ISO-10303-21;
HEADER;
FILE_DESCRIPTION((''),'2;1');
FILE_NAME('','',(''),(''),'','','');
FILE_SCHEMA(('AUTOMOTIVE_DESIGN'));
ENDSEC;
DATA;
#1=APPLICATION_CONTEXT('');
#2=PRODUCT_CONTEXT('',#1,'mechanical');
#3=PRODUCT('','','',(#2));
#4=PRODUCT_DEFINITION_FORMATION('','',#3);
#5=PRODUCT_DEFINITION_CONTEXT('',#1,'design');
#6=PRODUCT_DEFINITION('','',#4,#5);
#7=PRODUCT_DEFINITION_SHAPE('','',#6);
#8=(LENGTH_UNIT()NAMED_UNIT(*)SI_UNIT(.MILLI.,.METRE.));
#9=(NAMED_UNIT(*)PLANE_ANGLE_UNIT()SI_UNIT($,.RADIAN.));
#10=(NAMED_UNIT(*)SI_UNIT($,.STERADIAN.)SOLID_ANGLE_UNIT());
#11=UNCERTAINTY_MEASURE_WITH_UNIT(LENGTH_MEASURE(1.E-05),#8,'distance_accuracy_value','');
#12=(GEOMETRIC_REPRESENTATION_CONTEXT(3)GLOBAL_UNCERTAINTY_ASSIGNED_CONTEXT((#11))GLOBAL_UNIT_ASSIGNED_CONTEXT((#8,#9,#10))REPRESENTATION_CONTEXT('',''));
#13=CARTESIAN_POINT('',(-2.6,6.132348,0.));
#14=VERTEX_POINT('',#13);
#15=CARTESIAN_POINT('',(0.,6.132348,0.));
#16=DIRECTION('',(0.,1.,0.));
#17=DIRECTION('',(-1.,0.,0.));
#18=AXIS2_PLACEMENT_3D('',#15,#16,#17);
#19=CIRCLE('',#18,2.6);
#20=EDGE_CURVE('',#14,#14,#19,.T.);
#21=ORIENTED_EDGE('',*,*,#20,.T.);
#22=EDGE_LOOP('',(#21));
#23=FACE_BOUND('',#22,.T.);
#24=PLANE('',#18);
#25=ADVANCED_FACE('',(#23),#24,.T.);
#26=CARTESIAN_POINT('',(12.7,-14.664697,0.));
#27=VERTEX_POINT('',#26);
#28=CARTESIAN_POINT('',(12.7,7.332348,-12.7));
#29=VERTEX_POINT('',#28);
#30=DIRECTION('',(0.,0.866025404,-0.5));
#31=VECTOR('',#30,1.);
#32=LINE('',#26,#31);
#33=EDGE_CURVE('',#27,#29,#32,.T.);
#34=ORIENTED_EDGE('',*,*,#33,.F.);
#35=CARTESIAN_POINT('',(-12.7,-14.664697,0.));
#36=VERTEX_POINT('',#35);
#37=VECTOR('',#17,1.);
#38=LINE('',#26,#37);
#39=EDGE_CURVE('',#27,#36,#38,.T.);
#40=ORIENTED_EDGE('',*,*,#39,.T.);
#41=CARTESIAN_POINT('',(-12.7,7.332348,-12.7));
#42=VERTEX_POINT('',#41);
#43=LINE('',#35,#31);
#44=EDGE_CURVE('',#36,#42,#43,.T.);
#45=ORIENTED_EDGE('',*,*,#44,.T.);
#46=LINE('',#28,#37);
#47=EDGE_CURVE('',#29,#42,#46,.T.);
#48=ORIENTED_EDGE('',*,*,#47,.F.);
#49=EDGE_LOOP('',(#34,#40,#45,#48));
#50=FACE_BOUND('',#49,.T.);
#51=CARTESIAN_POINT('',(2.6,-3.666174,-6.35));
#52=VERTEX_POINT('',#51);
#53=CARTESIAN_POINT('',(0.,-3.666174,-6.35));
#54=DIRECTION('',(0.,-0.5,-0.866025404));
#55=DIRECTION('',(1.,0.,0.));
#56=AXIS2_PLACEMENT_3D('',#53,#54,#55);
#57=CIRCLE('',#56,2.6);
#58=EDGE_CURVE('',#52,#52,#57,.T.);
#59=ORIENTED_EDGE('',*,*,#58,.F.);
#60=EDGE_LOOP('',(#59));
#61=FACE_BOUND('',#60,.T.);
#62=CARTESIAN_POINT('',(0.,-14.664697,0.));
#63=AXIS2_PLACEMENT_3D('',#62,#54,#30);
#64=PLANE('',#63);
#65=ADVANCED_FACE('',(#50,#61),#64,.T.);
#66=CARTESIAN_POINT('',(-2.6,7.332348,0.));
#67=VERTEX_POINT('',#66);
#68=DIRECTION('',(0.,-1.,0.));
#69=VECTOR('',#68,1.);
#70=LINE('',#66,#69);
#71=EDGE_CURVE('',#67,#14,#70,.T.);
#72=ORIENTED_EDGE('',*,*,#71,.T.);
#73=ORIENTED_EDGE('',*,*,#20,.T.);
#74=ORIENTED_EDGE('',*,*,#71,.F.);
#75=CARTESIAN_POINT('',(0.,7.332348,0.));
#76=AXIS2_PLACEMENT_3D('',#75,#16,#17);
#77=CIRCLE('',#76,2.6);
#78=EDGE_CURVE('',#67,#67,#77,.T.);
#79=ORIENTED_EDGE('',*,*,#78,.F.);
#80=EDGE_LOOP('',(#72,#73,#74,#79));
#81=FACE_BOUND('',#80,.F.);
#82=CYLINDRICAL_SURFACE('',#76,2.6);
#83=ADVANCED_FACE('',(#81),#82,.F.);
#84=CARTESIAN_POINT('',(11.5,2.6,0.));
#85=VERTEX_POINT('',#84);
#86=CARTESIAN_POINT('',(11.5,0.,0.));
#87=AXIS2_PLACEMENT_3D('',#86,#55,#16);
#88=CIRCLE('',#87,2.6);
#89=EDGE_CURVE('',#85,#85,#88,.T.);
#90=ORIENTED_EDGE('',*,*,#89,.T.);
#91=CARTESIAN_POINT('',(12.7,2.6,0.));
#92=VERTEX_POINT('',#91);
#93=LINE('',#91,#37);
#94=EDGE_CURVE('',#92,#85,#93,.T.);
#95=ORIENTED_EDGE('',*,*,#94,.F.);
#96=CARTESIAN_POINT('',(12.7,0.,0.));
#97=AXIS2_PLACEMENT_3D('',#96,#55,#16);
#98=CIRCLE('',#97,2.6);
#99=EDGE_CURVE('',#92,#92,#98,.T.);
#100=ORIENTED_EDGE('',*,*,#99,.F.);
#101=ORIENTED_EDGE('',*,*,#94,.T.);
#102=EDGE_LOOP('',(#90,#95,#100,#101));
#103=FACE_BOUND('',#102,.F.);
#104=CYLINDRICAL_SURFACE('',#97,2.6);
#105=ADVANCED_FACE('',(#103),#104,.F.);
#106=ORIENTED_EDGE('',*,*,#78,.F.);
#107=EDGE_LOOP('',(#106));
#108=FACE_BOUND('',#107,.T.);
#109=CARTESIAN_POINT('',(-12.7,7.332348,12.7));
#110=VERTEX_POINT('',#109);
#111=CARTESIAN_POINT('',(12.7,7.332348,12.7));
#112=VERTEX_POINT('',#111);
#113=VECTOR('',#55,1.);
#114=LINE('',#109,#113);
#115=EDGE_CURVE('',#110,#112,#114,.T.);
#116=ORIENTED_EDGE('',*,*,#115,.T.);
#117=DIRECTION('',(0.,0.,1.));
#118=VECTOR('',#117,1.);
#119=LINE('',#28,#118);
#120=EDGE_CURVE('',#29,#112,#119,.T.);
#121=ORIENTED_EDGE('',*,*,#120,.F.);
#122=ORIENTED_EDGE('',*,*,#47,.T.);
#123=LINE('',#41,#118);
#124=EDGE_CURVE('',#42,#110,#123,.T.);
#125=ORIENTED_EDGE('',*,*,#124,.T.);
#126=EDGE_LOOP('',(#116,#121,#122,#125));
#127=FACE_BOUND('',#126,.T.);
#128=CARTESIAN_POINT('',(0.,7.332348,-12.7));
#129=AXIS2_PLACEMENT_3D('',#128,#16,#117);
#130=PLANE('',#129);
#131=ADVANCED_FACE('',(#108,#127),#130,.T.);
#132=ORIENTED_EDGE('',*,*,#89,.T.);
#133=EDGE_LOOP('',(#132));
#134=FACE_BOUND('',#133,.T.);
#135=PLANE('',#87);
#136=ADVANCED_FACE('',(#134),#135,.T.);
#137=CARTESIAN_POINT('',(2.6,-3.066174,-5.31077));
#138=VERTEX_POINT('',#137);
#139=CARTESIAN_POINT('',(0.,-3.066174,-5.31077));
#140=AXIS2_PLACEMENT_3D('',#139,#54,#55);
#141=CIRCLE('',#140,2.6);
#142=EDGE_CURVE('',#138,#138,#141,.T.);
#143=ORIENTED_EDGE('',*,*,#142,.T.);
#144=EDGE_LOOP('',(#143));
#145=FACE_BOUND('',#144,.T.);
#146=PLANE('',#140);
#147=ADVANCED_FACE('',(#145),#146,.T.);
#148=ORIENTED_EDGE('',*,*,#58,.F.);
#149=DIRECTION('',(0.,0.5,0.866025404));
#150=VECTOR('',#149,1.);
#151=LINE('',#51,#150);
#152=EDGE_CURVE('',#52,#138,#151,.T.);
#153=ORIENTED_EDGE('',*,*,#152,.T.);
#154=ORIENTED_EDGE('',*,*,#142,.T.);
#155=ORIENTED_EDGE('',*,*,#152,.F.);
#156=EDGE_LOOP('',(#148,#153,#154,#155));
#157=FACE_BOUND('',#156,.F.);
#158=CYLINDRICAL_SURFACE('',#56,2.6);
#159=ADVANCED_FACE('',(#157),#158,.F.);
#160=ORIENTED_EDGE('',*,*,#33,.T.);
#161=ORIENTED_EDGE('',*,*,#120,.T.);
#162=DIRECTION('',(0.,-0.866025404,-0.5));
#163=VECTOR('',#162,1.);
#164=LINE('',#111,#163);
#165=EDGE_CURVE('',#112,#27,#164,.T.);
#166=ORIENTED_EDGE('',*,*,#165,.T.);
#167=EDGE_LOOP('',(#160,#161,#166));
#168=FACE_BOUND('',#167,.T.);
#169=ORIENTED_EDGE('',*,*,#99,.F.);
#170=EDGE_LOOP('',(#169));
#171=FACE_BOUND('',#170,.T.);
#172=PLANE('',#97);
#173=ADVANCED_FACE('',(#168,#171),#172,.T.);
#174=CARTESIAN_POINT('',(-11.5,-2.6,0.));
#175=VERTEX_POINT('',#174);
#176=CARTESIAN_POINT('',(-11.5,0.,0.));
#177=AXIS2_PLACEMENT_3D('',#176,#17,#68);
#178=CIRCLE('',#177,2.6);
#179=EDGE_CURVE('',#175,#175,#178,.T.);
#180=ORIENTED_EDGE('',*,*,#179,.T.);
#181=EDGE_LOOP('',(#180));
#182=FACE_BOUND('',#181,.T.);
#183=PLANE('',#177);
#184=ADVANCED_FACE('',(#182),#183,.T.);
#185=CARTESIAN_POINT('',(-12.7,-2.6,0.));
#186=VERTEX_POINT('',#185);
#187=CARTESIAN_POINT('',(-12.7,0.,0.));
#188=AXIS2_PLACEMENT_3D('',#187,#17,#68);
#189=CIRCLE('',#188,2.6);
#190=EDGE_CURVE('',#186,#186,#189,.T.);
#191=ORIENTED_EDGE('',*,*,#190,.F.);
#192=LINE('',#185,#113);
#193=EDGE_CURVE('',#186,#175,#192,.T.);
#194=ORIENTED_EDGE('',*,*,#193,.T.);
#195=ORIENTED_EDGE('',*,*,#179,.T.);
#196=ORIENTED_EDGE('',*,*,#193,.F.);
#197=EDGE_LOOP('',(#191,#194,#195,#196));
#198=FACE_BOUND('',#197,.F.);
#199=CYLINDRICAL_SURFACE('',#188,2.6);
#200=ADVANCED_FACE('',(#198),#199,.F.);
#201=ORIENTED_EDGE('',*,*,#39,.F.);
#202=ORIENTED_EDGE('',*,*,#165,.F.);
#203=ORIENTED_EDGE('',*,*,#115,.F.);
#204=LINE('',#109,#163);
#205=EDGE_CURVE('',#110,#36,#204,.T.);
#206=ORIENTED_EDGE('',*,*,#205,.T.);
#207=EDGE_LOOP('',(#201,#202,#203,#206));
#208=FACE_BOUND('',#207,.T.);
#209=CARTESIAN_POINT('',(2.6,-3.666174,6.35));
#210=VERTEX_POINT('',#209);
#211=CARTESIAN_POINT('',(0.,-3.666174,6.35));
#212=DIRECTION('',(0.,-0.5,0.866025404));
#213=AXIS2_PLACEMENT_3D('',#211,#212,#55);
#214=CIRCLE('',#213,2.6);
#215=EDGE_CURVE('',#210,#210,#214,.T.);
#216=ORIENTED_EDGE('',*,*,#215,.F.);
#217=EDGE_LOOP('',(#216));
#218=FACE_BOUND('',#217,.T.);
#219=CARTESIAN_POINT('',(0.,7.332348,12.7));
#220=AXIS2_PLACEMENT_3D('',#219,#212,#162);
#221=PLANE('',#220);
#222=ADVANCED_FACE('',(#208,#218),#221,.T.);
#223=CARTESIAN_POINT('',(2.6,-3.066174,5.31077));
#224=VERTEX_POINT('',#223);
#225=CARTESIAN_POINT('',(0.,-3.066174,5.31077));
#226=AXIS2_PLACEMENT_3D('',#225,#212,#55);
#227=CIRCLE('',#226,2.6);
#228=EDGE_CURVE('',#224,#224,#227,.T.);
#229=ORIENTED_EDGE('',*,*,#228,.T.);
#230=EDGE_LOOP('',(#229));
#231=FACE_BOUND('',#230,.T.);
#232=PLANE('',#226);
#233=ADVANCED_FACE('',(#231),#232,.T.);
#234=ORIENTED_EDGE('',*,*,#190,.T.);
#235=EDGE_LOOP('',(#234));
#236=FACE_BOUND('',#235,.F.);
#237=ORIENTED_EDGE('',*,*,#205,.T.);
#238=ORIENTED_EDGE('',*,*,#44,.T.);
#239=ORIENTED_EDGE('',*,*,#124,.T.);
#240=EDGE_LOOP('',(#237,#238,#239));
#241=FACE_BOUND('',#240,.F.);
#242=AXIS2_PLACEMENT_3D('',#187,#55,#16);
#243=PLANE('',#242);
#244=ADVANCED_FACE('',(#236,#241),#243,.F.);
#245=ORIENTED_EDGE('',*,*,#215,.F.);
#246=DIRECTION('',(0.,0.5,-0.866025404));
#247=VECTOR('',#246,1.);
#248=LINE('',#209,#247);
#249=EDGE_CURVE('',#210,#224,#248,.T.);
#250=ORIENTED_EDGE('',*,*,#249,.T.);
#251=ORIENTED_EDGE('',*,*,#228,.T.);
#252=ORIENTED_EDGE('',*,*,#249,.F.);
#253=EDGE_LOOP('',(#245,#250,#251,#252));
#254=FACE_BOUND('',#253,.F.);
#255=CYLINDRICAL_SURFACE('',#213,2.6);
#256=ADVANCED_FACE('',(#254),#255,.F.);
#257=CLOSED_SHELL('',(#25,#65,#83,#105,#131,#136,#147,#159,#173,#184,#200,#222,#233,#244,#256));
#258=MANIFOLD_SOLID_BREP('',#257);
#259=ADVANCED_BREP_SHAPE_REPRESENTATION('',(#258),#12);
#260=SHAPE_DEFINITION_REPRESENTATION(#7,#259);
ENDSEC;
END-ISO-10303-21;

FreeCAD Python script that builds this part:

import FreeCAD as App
import Part
import Sketcher

V = App.Vector
Q = App.Units.Quantity

doc = App.newDocument("Part")
params = doc.addObject("Spreadsheet::Sheet", "Params")
for row, (alias, value) in enumerate([
    ("sketch1_height", "25.4 mm"),
    ("pad1_length", "25.4 mm"),
    ("sketch2_diameter", "5.2 mm"),
    ("pocket1_length", "1.2 mm"),
    ("sketch3_diameter", "5.2 mm"),
    ("pocket2_length", "1.2 mm"),
    ("sketch4_diameter", "5.2 mm"),
    ("pocket3_length", "1.2 mm"),
    ("sketch5_diameter", "5.2 mm"),
    ("pocket4_length", "1.2 mm"),
    ("sketch6_diameter", "5.2 mm"),
    ("pocket5_length", "1.2 mm"),
], start=1):
    params.set(f"A{row}", alias)
    params.set(f"B{row}", "=" + value)
    params.setAlias(f"B{row}", alias)

body = doc.addObject("PartDesign::Body", "Body")

sketch1 = doc.addObject("Sketcher::SketchObject", "Sketch")
body.addObject(sketch1)
sketch1.AttachmentSupport = (doc.YZ_Plane, [""])
sketch1.MapMode = "FlatFace"
sketch1.addGeometry(Part.LineSegment(V(7, -13, 0), V(7, 13, 0)), False)
sketch1.addGeometry(Part.LineSegment(V(7, 13, 0), V(-15, 0, 0)), False)
sketch1.addGeometry(Part.LineSegment(V(-15, 0, 0), V(7, -13, 0)), False)
sketch1.addConstraint(Sketcher.Constraint("Coincident", 0, 2, 1, 1))
sketch1.addConstraint(Sketcher.Constraint("Coincident", 1, 2, 2, 1))
sketch1.addConstraint(Sketcher.Constraint("Coincident", 2, 2, 0, 1))
sketch1.addConstraint(Sketcher.Constraint("Vertical", 0))
sketch1.addConstraint(Sketcher.Constraint("PointOnObject", 1, 2, -1))
sketch1.addConstraint(Sketcher.Constraint("Equal", 1, 2))
sketch1.addConstraint(Sketcher.Constraint("Angle", 1, Q("-150 deg")))
sketch1.addConstraint(Sketcher.Constraint("DistanceY", 0, 1, 0, 2, 25.4))
sketch1.addConstraint(Sketcher.Constraint("DistanceX", -1, 1, 0, 2, 7.332348))
sketch1.setExpression("Constraints[7]", "Params.sketch1_height")
pad1 = doc.addObject("PartDesign::Pad", "Pad")
body.addObject(pad1)
pad1.Profile = sketch1
pad1.setExpression("Length", "Params.pad1_length")
pad1.Midplane = True

sketch2 = doc.addObject("Sketcher::SketchObject", "Sketch001")
body.addObject(sketch2)
sketch2.AttachmentSupport = (doc.YZ_Plane, [""])
sketch2.MapMode = "FlatFace"
sketch2.AttachmentOffset = App.Placement(V(0, 0, 12.7), App.Rotation())
sketch2.addGeometry(Part.Circle(V(0, 0, 0), V(0, 0, 1), 2.6), False)
sketch2.addConstraint(Sketcher.Constraint("Coincident", 0, 3, -1, 1))
sketch2.addConstraint(Sketcher.Constraint("Diameter", 0, 5.2))
sketch2.setExpression("Constraints[1]", "Params.sketch2_diameter")
pocket1 = doc.addObject("PartDesign::Pocket", "Pocket")
body.addObject(pocket1)
pocket1.Profile = sketch2
pocket1.setExpression("Length", "Params.pocket1_length")

sketch3 = doc.addObject("Sketcher::SketchObject", "Sketch002")
body.addObject(sketch3)
sketch3.Placement = App.Placement(V(0, -3.666174, -6.35), App.Rotation(V(1, 0, 0), V(0, -0.866025404, 0.5), V(0, -0.5, -0.866025404), "ZXY"))
sketch3.addGeometry(Part.Circle(V(0, 0, 0), V(0, 0, 1), 2.6), False)
sketch3.addConstraint(Sketcher.Constraint("Coincident", 0, 3, -1, 1))
sketch3.addConstraint(Sketcher.Constraint("Diameter", 0, 5.2))
sketch3.setExpression("Constraints[1]", "Params.sketch3_diameter")
pocket2 = doc.addObject("PartDesign::Pocket", "Pocket001")
body.addObject(pocket2)
pocket2.Profile = sketch3
pocket2.setExpression("Length", "Params.pocket2_length")

sketch4 = doc.addObject("Sketcher::SketchObject", "Sketch003")
body.addObject(sketch4)
sketch4.AttachmentSupport = (doc.YZ_Plane, [""])
sketch4.MapMode = "FlatFace"
sketch4.AttachmentOffset = App.Placement(V(0, 0, -12.7), App.Rotation())
sketch4.addGeometry(Part.Circle(V(0, 0, 0), V(0, 0, 1), 2.6), False)
sketch4.addConstraint(Sketcher.Constraint("Coincident", 0, 3, -1, 1))
sketch4.addConstraint(Sketcher.Constraint("Diameter", 0, 5.2))
sketch4.setExpression("Constraints[1]", "Params.sketch4_diameter")
pocket3 = doc.addObject("PartDesign::Pocket", "Pocket002")
body.addObject(pocket3)
pocket3.Profile = sketch4
pocket3.setExpression("Length", "Params.pocket3_length")
pocket3.Reversed = True

sketch5 = doc.addObject("Sketcher::SketchObject", "Sketch004")
body.addObject(sketch5)
sketch5.AttachmentSupport = (doc.XZ_Plane, [""])
sketch5.MapMode = "FlatFace"
sketch5.AttachmentOffset = App.Placement(V(0, 0, -7.332348), App.Rotation())
sketch5.addGeometry(Part.Circle(V(0, 0, 0), V(0, 0, 1), 2.6), False)
sketch5.addConstraint(Sketcher.Constraint("Coincident", 0, 3, -1, 1))
sketch5.addConstraint(Sketcher.Constraint("Diameter", 0, 5.2))
sketch5.setExpression("Constraints[1]", "Params.sketch5_diameter")
pocket4 = doc.addObject("PartDesign::Pocket", "Pocket003")
body.addObject(pocket4)
pocket4.Profile = sketch5
pocket4.setExpression("Length", "Params.pocket4_length")
pocket4.Reversed = True

sketch6 = doc.addObject("Sketcher::SketchObject", "Sketch005")
body.addObject(sketch6)
sketch6.Placement = App.Placement(V(0, -3.666174, 6.35), App.Rotation(V(1, 0, 0), V(0, 0.866025404, 0.5), V(0, -0.5, 0.866025404), "ZXY"))
sketch6.addGeometry(Part.Circle(V(0, 0, 0), V(0, 0, 1), 2.6), False)
sketch6.addConstraint(Sketcher.Constraint("Coincident", 0, 3, -1, 1))
sketch6.addConstraint(Sketcher.Constraint("Diameter", 0, 5.2))
sketch6.setExpression("Constraints[1]", "Params.sketch6_diameter")
pocket5 = doc.addObject("PartDesign::Pocket", "Pocket004")
body.addObject(pocket5)
pocket5.Profile = sketch6
pocket5.setExpression("Length", "Params.pocket5_length")

doc.recompute()
